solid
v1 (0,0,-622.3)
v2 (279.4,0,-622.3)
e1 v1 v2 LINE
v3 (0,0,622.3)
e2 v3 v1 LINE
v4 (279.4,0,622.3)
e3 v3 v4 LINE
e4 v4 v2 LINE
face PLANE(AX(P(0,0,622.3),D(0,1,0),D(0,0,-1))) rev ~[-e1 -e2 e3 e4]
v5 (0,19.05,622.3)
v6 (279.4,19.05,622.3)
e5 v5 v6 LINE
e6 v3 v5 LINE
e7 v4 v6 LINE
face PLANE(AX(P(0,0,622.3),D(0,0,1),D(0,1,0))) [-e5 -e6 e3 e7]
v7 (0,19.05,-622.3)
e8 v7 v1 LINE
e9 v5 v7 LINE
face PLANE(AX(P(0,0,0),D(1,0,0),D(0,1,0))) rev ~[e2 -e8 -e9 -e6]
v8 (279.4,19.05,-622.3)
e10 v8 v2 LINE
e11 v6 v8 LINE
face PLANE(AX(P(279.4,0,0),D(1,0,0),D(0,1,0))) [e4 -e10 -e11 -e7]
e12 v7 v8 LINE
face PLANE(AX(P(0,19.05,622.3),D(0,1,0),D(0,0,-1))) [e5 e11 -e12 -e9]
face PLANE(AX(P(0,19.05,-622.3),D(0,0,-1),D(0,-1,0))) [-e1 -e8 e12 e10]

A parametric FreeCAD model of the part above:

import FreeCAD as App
import Part
import Sketcher

V = App.Vector
Q = App.Units.Quantity


def add_polygon(sketch, points):
    """Adds a closed chain of lines whose ends are joined by coincident constraints."""
    first, n = sketch.GeometryCount, len(points)
    for a, b in zip(points, points[1:] + points[:1]):
        sketch.addGeometry(Part.LineSegment(App.Vector(*a, 0), App.Vector(*b, 0)), False)
    for i in range(n):
        sketch.addConstraint(Sketcher.Constraint("Coincident", first + i, 2, first + (i + 1) % n, 1))

doc = App.newDocument("Part")
body = doc.addObject("PartDesign::Body", "Body")

sketch1 = doc.addObject("Sketcher::SketchObject", "Sketch")
body.addObject(sketch1)
sketch1.AttachmentSupport = (doc.YZ_Plane, [""])
sketch1.MapMode = "FlatFace"
add_polygon(sketch1, [(19.05, 622.3), (0, 622.3), (0, -622.3), (19.05, -622.3)])
sketch1.addConstraint(Sketcher.Constraint("Horizontal", 0))
sketch1.addConstraint(Sketcher.Constraint("Vertical", 1))
sketch1.addConstraint(Sketcher.Constraint("Horizontal", 2))
sketch1.addConstraint(Sketcher.Constraint("Vertical", 3))
sketch1.addConstraint(Sketcher.Constraint("Symmetric", 0, 2, 1, 2, -1, 1))
sketch1.addConstraint(Sketcher.Constraint("DistanceY", 1, 2, 1, 1, Q("49 in")))
sketch1.addConstraint(Sketcher.Constraint("DistanceX", 0, 2, 0, 1, Q("0.75 in")))
pad1 = doc.addObject("PartDesign::Pad", "Pad")
body.addObject(pad1)
pad1.Profile = sketch1
pad1.Length = Q("11 in")

doc.recompute()
